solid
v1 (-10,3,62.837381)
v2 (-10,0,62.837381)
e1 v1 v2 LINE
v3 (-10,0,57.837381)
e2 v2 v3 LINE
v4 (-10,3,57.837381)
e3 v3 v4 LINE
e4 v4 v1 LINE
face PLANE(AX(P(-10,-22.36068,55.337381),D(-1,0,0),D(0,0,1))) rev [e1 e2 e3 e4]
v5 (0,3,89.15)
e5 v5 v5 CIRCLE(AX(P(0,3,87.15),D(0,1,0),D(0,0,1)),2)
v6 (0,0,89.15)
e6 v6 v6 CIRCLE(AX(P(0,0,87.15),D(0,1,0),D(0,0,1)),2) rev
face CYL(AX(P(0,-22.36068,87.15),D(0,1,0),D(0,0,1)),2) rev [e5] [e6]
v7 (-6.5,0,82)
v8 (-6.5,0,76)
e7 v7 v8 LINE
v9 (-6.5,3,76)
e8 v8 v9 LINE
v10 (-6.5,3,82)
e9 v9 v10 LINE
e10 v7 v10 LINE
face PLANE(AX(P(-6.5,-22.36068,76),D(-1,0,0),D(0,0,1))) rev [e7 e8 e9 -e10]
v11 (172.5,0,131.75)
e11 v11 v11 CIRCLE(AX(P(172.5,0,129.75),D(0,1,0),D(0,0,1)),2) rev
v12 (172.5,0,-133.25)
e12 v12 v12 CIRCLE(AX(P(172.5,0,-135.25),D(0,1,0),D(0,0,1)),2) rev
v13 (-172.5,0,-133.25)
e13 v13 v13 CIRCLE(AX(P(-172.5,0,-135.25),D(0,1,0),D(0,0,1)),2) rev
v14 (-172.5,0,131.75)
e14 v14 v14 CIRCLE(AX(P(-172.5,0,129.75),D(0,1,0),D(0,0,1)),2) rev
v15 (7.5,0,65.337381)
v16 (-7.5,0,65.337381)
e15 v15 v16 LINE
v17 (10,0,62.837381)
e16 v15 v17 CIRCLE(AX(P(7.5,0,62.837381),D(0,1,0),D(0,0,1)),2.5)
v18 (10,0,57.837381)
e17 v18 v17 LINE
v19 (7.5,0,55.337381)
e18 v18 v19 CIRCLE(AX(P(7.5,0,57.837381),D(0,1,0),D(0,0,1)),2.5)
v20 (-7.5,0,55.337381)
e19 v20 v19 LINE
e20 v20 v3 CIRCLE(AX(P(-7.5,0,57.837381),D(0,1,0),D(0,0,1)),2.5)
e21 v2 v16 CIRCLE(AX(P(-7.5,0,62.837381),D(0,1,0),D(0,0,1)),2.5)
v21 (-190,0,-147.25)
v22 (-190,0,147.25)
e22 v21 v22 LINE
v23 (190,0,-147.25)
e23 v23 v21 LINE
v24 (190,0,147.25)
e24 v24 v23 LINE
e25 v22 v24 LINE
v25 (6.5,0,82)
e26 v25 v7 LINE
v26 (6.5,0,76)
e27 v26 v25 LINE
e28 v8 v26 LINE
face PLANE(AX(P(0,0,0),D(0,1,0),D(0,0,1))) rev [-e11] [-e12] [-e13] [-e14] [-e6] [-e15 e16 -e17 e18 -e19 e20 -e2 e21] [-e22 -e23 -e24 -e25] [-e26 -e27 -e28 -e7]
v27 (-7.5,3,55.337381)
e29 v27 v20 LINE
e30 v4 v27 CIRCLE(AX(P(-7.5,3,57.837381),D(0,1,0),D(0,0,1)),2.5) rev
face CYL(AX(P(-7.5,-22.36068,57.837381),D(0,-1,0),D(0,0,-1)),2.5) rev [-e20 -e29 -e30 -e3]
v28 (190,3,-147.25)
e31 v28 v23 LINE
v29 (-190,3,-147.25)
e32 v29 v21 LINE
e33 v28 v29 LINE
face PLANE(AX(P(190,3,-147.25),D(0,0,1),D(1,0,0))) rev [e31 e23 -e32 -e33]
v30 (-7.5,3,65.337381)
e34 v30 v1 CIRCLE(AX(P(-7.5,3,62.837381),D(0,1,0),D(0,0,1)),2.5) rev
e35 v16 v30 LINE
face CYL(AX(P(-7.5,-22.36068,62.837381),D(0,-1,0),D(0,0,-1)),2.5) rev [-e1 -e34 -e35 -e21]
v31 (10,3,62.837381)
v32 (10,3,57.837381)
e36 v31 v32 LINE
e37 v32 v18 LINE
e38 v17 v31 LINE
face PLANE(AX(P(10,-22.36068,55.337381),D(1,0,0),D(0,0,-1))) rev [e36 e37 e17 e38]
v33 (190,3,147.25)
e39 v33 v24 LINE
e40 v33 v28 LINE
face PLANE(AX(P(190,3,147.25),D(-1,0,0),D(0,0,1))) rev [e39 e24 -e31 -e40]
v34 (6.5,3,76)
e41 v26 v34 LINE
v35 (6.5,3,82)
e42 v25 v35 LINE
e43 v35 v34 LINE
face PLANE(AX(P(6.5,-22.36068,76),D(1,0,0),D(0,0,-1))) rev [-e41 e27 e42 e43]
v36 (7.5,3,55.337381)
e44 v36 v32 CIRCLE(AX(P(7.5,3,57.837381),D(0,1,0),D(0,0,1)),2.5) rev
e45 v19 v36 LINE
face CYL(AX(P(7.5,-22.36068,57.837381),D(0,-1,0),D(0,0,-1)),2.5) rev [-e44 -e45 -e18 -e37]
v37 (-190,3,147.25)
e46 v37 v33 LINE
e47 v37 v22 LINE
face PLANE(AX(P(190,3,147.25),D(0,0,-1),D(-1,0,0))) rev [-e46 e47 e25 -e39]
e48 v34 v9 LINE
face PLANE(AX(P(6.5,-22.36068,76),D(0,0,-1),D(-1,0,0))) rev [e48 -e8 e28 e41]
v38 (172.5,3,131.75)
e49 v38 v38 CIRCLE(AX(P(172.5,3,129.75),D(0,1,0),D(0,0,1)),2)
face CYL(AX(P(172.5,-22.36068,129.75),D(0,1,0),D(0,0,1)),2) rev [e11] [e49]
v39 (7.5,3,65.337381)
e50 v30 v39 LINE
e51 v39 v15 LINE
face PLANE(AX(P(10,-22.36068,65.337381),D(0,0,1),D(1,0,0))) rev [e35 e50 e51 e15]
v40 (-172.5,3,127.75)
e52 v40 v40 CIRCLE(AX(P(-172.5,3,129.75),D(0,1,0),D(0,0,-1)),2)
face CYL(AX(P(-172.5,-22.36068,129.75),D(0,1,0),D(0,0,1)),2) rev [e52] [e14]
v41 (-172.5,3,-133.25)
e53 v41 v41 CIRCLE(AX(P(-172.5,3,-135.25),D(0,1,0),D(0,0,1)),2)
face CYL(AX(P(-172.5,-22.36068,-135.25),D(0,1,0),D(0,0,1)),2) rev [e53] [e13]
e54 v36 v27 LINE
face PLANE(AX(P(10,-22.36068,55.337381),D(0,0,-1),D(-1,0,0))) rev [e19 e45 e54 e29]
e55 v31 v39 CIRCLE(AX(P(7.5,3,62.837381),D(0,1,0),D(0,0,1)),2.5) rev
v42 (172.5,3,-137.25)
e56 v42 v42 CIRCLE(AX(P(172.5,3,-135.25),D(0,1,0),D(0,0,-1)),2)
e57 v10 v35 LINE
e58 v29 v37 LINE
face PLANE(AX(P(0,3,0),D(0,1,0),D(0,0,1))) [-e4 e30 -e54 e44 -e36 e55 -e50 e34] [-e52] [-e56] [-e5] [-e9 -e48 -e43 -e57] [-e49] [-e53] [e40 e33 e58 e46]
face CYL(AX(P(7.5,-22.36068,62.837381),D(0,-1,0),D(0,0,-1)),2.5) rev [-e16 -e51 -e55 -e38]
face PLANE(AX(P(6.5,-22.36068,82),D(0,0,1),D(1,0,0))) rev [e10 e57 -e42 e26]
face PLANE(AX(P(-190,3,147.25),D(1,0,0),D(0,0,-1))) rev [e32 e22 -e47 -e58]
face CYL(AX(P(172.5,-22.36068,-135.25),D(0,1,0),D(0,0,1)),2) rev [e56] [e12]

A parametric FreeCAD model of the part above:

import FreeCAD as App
import Part
import Sketcher
from FreeCAD import Vector
Q = App.Units.Quantity


def edges_at(feature, points):
    """Names of the edges that pass closest to the given points."""
    edges = feature.Shape.Edges
    near = lambda p: min(range(len(edges)), key=lambda i: edges[i].distToShape(Part.Vertex(*p))[0])
    return sorted({f"Edge{near(p) + 1}" for p in points})

doc = App.newDocument("Part")
body = doc.addObject("PartDesign::Body", "Body")

# Sketch on XZ plane
sketch1 = body.newObject("Sketcher::SketchObject", "Sketch")
sketch1.AttachmentSupport = (doc.getObject("XZ_Plane"), [""])
sketch1.MapMode = "FlatFace"
sketch1.addGeometry([
    Part.LineSegment(Vector(-190, -147, 0), Vector(-190, 147, 0)),
    Part.LineSegment(Vector(-190, 147, 0), Vector(190, 147, 0)),
    Part.LineSegment(Vector(190, 147, 0), Vector(190, -147, 0)),
    Part.LineSegment(Vector(190, -147, 0), Vector(-190, -147, 0)),
], False)
sketch1.addConstraint([
    Sketcher.Constraint("Coincident", 0, 2, 1, 1),
    Sketcher.Constraint("Coincident", 1, 2, 2, 1),
    Sketcher.Constraint("Coincident", 2, 2, 3, 1),
    Sketcher.Constraint("Coincident", 3, 2, 0, 1),
    Sketcher.Constraint("Vertical", 0),
    Sketcher.Constraint("Horizontal", 1),
    Sketcher.Constraint("Vertical", 2),
    Sketcher.Constraint("Horizontal", 3),
    Sketcher.Constraint("Symmetric", 0, 2, 2, 2, -1, 1),
    Sketcher.Constraint("DistanceX", 1, 1, 1, 2, Q("380 mm")),
    Sketcher.Constraint("DistanceY", 0, 1, 0, 2, Q("294.5 mm")),
])
pad1 = body.newObject("PartDesign::Pad", "Pad")
pad1.Profile = sketch1
pad1.Length = 3
pad1.Reversed = True

# Sketch on XZ plane
sketch2 = body.newObject("Sketcher::SketchObject", "Sketch001")
sketch2.AttachmentSupport = (doc.getObject("XZ_Plane"), [""])
sketch2.MapMode = "FlatFace"
sketch2.AttachmentOffset = App.Placement(Vector(0, 0, -3), App.Rotation())
sketch2.addGeometry([
    Part.Circle(Vector(-172.5, -135.2, 0), Vector(0, 0, 1), 2),  # 0
    Part.Circle(Vector(-172.5, 129.8, 0), Vector(0, 0, 1), 2),  # 1
    Part.Circle(Vector(172.5, 129.8, 0), Vector(0, 0, 1), 2),  # 2
    Part.Circle(Vector(172.5, -135.2, 0), Vector(0, 0, 1), 2),  # 3
    Part.Circle(Vector(0, 87.2, 0), Vector(0, 0, 1), 2),  # 4
    Part.LineSegment(Vector(-6.5, 76, 0), Vector(-6.5, 82, 0)),  # 5
    Part.LineSegment(Vector(-6.5, 82, 0), Vector(6.5, 82, 0)),  # 6
    Part.LineSegment(Vector(6.5, 82, 0), Vector(6.5, 76, 0)),  # 7
    Part.LineSegment(Vector(6.5, 76, 0), Vector(-6.5, 76, 0)),  # 8
    Part.LineSegment(Vector(-10, 55.3, 0), Vector(-10, 65.3, 0)),  # 9
    Part.LineSegment(Vector(-10, 65.3, 0), Vector(10, 65.3, 0)),  # 10
    Part.LineSegment(Vector(10, 65.3, 0), Vector(10, 55.3, 0)),  # 11
    Part.LineSegment(Vector(10, 55.3, 0), Vector(-10, 55.3, 0)),  # 12
], False)
sketch2.addConstraint([
    Sketcher.Constraint("Coincident", 5, 2, 6, 1),
    Sketcher.Constraint("Coincident", 6, 2, 7, 1),
    Sketcher.Constraint("Coincident", 7, 2, 8, 1),
    Sketcher.Constraint("Coincident", 8, 2, 5, 1),
    Sketcher.Constraint("Coincident", 9, 2, 10, 1),
    Sketcher.Constraint("Coincident", 10, 2, 11, 1),
    Sketcher.Constraint("Coincident", 11, 2, 12, 1),
    Sketcher.Constraint("Coincident", 12, 2, 9, 1),
    Sketcher.Constraint("Vertical", 5),
    Sketcher.Constraint("Horizontal", 6),
    Sketcher.Constraint("Vertical", 7),
    Sketcher.Constraint("Horizontal", 8),
    Sketcher.Constraint("Vertical", 9),
    Sketcher.Constraint("Horizontal", 10),
    Sketcher.Constraint("Vertical", 11),
    Sketcher.Constraint("Horizontal", 12),
    Sketcher.Constraint("Equal", 0, 1),
    Sketcher.Constraint("Equal", 1, 2),
    Sketcher.Constraint("Equal", 2, 3),
    Sketcher.Constraint("Equal", 3, 4),
    Sketcher.Constraint("Symmetric", 1, 3, 2, 3, -2),
    Sketcher.Constraint("Symmetric", 0, 3, 3, 3, -2),
    Sketcher.Constraint("PointOnObject", 4, 3, -2),
    Sketcher.Constraint("Vertical", 0, 3, 1, 3),
    Sketcher.Constraint("Diameter", 0, Q("4 mm")),
    Sketcher.Constraint("DistanceX", 6, 1, 6, 2, Q("13 mm")),
    Sketcher.Constraint("DistanceX", 10, 1, 10, 2, Q("20 mm")),
    Sketcher.Constraint("DistanceY", 5, 1, 5, 2, Q("6 mm")),
    Sketcher.Constraint("DistanceY", 9, 1, 9, 2, Q("10 mm")),
    Sketcher.Constraint("DistanceY", -1, 1, 5, 2, Q("82 mm")),
    Sketcher.Constraint("DistanceX", 9, 2, -1, 1, Q("10 mm")),
    Sketcher.Constraint("DistanceY", 0, 3, 1, 3, Q("265 mm")),
    Sketcher.Constraint("DistanceX", 1, 3, 2, 3, Q("345 mm")),
    Sketcher.Constraint("DistanceX", 1, 3, 5, 2, Q("166 mm")),
    Sketcher.Constraint("DistanceY", 4, 3, 1, 3, Q("42.6 mm")),
    Sketcher.Constraint("DistanceY", 0, 3, -1, 1, Q("135.25 mm")),
    Sketcher.Constraint("DistanceY", -1, 1, 9, 2, Q("65.337381 mm")),
])
pocket1 = body.newObject("PartDesign::Pocket", "Pocket")
pocket1.Profile = sketch2
pocket1.Length = 3
pocket1.Reversed = True
doc.recompute()

fillet = body.newObject("PartDesign::Fillet", "Fillet")
fillet.Base = (pocket1, edges_at(pocket1, [
    (-10, 1.5, 65.337),
    (-10, 1.5, 55.337),
    (10, 1.5, 55.337),
    (10, 1.5, 65.337),
]))
fillet.Radius = 2.5

doc.recompute()
